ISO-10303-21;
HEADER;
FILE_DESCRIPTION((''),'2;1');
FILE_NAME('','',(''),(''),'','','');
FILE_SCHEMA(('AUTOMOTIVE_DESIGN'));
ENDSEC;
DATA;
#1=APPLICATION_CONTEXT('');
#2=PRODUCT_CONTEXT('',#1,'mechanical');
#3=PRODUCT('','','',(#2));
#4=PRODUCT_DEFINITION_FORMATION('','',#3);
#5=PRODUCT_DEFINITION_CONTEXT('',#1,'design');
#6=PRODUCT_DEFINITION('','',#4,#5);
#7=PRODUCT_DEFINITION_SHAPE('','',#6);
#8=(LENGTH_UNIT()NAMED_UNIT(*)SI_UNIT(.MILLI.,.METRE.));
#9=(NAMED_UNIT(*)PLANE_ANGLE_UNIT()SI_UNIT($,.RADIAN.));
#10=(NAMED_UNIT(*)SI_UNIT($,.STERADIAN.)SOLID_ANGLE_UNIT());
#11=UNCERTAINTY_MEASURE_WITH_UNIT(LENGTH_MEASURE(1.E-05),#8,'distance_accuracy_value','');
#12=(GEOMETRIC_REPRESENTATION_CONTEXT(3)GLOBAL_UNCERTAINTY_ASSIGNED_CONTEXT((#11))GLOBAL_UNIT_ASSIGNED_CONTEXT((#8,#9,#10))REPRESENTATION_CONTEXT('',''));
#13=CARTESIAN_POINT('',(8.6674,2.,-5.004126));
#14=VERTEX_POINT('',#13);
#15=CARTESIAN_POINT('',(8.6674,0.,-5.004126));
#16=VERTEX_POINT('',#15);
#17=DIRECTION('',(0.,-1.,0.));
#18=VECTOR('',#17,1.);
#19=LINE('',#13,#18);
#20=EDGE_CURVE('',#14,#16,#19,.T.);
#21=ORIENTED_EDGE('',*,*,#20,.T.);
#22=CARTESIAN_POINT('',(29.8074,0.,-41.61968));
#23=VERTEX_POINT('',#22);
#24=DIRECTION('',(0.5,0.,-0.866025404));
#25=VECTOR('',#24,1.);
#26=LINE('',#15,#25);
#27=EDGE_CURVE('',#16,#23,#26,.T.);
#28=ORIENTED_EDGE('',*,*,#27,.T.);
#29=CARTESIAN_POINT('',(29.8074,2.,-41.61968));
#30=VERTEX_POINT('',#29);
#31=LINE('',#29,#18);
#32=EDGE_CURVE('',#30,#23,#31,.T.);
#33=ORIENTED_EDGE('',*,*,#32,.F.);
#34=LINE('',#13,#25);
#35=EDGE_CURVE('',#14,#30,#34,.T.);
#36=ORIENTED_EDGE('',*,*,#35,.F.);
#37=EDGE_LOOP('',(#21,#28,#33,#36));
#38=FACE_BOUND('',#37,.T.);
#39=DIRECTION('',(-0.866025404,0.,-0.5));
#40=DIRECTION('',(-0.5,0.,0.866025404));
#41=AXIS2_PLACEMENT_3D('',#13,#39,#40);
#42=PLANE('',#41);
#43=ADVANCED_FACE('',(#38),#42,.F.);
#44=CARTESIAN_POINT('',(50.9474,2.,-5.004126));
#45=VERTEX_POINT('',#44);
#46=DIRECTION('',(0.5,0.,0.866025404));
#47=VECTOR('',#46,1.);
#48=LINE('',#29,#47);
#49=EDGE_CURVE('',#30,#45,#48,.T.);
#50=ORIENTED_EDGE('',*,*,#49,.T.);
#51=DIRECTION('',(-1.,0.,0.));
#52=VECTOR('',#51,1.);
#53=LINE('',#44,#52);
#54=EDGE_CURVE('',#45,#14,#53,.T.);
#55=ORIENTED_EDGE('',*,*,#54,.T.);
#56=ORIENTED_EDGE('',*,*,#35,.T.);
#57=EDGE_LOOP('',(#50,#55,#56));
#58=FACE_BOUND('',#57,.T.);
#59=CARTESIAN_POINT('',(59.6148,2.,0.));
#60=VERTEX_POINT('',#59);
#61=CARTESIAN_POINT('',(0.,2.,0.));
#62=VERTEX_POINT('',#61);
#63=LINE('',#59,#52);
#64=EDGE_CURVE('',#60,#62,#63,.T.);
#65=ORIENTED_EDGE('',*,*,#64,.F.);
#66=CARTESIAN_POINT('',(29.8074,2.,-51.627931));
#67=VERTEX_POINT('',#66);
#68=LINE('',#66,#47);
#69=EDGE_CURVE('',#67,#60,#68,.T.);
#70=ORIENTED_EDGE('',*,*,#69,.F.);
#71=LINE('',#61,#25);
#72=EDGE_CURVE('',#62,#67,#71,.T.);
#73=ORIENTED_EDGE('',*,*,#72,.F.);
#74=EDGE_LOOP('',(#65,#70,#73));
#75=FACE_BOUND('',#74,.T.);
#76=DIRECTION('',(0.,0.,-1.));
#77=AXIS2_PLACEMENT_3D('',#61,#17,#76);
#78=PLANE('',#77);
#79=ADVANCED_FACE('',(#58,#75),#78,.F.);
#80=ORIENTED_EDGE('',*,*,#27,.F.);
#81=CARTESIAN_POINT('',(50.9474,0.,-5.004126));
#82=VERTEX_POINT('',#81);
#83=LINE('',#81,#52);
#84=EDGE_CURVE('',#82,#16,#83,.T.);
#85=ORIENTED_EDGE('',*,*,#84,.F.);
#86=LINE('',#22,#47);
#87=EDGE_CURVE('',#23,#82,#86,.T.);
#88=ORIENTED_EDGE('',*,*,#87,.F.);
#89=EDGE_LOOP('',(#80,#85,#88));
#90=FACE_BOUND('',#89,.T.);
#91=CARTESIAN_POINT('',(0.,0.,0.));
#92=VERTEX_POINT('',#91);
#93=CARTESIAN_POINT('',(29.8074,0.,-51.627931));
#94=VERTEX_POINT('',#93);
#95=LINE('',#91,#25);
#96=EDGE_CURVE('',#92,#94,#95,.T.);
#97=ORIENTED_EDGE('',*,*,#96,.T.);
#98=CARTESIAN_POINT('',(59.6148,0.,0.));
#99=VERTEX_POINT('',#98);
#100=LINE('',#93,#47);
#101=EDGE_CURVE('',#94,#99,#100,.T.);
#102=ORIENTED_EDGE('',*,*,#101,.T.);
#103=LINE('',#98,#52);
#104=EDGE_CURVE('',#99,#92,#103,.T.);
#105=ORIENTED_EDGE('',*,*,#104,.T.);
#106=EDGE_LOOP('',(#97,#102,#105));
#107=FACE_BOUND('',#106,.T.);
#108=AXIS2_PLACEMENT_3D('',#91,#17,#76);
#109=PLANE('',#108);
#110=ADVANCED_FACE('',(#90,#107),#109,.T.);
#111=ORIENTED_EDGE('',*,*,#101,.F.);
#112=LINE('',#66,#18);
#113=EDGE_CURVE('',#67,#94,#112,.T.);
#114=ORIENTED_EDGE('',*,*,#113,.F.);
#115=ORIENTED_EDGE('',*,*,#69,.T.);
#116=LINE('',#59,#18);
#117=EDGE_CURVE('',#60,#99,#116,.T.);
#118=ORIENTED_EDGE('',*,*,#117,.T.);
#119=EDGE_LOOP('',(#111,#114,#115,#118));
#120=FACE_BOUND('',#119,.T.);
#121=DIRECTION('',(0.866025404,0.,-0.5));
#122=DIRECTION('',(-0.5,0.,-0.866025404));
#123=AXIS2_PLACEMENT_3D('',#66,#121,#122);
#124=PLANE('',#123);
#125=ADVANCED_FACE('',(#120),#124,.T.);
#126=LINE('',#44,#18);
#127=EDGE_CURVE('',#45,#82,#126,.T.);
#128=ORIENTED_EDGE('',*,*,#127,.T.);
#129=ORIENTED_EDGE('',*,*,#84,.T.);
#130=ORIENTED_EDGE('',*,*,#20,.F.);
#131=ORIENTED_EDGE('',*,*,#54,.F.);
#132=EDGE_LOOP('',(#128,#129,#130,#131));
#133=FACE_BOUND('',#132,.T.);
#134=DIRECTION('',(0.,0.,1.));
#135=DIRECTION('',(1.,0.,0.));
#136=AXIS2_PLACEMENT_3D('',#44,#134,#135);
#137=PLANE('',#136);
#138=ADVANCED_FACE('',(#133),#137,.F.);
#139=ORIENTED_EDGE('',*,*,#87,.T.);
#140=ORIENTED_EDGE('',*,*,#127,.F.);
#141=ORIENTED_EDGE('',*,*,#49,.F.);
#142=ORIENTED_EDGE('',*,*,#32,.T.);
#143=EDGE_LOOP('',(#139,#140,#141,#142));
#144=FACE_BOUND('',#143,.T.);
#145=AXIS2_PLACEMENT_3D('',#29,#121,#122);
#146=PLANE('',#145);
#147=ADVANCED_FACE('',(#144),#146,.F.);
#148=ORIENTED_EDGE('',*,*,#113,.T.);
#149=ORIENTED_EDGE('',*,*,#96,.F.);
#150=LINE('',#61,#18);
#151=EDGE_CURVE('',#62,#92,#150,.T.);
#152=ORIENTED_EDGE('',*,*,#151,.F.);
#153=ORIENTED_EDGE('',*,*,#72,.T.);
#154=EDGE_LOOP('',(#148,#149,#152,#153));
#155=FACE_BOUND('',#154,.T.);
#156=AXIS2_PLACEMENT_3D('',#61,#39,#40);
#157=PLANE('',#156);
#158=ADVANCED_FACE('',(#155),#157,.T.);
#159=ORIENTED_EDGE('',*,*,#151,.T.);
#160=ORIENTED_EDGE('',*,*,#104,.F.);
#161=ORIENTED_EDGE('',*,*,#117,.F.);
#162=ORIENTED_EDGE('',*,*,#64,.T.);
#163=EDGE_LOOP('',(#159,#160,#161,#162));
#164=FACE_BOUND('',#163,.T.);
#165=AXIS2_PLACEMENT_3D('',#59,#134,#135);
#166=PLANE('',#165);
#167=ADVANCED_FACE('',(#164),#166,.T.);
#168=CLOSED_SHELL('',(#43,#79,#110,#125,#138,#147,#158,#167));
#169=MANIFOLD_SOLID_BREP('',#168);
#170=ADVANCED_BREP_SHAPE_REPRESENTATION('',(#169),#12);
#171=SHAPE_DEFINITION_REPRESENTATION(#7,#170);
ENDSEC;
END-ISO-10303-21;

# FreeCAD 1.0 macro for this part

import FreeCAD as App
import Part
import Sketcher
Q = App.Units.Quantity


def add_polygon(sketch, points):
    """Adds a closed chain of lines whose ends are joined by coincident constraints."""
    first, n = sketch.GeometryCount, len(points)
    for a, b in zip(points, points[1:] + points[:1]):
        sketch.addGeometry(Part.LineSegment(App.Vector(*a, 0), App.Vector(*b, 0)), False)
    for i in range(n):
        sketch.addConstraint(Sketcher.Constraint("Coincident", first + i, 2, first + (i + 1) % n, 1))

doc = App.newDocument("Part")
params = doc.addObject("Spreadsheet::Sheet", "Params")
for row, (alias, value) in enumerate([
    ("sketch1_width", "42.28 mm"),
    ("pad1_length", "2 mm"),
], start=1):
    params.set(f"A{row}", alias)
    params.set(f"B{row}", "=" + value)
    params.setAlias(f"B{row}", alias)

body = doc.addObject("PartDesign::Body", "Body")

# Sketch on XZ plane
sketch1 = body.newObject("Sketcher::SketchObject", "Sketch")
sketch1.AttachmentSupport = (doc.getObject("XZ_Plane"), [""])
sketch1.MapMode = "FlatFace"
add_polygon(sketch1, [(30, -52), (0, 0), (60, 0)])  # lines 0-2
add_polygon(sketch1, [(51, -5), (9, -5), (30, -42)])  # lines 3-5
sketch1.addConstraint(Sketcher.Constraint("Horizontal", 1))
sketch1.addConstraint(Sketcher.Constraint("Horizontal", 3))
sketch1.addConstraint(Sketcher.Constraint("Coincident", 0, 2, -1, 1))
sketch1.addConstraint(Sketcher.Constraint("Parallel", 0, 4))
sketch1.addConstraint(Sketcher.Constraint("Parallel", 2, 5))
sketch1.addConstraint(Sketcher.Constraint("Vertical", 2, 2, 4, 2))
sketch1.addConstraint(Sketcher.Constraint("Equal", 0, 2))
sketch1.addConstraint(Sketcher.Constraint("Angle", 0, Q("120 deg")))
sketch1.addConstraint(Sketcher.Constraint("DistanceX", 3, 2, 3, 1, Q("42.28 mm")))
sketch1.addConstraint(Sketcher.Constraint("DistanceX", 1, 1, 1, 2, Q("59.6148 mm")))
sketch1.addConstraint(Sketcher.Constraint("DistanceY", 4, 2, -1, 1, Q("41.61968 mm")))
sketch1.setExpression("Constraints[14]", "Params.sketch1_width")
pad1 = body.newObject("PartDesign::Pad", "Pad")
pad1.Profile = sketch1
pad1.setExpression("Length", "Params.pad1_length")
pad1.Reversed = True

doc.recompute()
